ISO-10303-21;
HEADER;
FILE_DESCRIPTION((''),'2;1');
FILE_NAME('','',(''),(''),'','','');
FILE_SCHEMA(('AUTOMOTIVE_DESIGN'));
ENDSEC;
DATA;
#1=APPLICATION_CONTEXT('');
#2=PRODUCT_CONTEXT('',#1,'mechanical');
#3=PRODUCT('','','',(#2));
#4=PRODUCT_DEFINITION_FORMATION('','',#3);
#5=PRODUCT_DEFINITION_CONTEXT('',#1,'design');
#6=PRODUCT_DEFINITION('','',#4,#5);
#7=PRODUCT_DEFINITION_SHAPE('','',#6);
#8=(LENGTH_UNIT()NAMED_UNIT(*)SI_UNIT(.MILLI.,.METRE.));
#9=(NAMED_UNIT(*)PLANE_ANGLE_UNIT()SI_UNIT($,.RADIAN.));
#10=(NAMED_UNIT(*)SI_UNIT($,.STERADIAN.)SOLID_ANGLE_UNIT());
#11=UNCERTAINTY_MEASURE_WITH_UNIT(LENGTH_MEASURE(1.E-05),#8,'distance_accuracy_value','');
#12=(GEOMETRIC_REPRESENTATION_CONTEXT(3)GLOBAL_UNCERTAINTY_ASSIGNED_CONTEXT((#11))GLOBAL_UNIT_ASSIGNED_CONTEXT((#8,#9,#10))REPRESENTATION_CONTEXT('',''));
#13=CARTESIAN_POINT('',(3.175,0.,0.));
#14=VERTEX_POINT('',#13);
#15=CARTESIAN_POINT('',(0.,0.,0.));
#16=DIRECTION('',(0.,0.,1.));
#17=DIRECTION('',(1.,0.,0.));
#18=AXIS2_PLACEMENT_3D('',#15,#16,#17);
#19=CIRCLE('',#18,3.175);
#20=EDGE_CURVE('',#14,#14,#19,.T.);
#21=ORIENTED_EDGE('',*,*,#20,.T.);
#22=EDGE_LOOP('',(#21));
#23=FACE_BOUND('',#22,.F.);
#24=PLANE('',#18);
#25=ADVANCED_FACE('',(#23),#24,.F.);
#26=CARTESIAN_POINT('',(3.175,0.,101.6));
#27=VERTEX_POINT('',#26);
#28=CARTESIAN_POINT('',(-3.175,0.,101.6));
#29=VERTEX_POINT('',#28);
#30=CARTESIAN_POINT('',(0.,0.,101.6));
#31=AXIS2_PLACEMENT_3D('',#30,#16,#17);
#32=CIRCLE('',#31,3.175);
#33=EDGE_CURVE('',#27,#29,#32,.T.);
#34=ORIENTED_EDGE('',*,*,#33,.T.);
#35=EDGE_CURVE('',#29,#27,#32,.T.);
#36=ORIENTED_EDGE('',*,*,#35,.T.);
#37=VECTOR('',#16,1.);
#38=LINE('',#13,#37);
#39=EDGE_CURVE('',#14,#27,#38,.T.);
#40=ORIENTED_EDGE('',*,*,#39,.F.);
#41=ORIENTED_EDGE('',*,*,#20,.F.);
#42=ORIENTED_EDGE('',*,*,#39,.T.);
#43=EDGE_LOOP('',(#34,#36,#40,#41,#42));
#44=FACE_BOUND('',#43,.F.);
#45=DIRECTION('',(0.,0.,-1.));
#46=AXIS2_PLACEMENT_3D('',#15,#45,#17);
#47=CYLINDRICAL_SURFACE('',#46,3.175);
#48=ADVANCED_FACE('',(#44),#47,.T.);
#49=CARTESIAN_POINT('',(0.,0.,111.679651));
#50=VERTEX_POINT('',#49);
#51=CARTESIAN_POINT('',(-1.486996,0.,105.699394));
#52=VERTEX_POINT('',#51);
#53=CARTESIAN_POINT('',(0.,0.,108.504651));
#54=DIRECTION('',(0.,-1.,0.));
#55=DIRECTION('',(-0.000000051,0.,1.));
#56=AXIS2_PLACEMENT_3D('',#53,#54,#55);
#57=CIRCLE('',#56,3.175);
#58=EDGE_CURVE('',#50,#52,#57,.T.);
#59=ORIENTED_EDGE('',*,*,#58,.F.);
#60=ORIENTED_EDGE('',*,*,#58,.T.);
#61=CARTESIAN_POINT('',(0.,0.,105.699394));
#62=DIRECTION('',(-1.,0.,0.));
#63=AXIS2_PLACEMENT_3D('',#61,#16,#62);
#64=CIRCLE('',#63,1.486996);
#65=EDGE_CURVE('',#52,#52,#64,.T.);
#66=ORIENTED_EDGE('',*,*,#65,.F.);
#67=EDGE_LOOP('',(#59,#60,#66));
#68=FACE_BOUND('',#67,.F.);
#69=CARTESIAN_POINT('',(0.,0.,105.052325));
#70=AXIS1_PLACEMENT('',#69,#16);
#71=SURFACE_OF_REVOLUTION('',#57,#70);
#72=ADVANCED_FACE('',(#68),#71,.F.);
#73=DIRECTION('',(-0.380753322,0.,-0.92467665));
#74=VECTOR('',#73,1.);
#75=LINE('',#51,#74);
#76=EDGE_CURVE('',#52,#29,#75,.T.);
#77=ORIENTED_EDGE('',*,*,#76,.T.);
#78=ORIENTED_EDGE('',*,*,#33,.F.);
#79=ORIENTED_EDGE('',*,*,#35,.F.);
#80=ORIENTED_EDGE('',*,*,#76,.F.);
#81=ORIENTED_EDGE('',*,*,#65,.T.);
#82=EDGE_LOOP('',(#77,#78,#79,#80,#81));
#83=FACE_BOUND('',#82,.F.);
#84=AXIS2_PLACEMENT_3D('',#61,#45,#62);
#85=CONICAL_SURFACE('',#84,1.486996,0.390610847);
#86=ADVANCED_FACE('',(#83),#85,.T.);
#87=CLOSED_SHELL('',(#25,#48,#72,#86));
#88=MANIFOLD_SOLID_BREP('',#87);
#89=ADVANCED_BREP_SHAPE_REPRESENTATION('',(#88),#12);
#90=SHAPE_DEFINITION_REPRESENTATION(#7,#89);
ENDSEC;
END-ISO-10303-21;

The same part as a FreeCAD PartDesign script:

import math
import FreeCAD as App
import Part
import Sketcher

V = App.Vector
Q = App.Units.Quantity

doc = App.newDocument("Part")
body = doc.addObject("PartDesign::Body", "Body")

# Sketch on XY plane
sketch1 = body.newObject("Sketcher::SketchObject", "Sketch")
sketch1.AttachmentSupport = (doc.getObject("XY_Plane"), [""])
sketch1.MapMode = "FlatFace"
sketch1.addGeometry(Part.Circle(V(0, 0, 0), V(0, 0, 1), 3.2), False)
sketch1.addConstraint(Sketcher.Constraint("Coincident", 0, 3, -1, 1))
sketch1.addConstraint(Sketcher.Constraint("Diameter", 0, Q("0.25 in")))
pad1 = body.newObject("PartDesign::Pad", "Pad")
pad1.Profile = sketch1
pad1.Length = Q("4 in")

# Sketch on XZ plane
sketch2 = body.newObject("Sketcher::SketchObject", "Sketch001")
sketch2.AttachmentSupport = (doc.getObject("XZ_Plane"), [""])
sketch2.MapMode = "FlatFace"
sketch2.addGeometry(Part.ArcOfCircle(Part.Circle(V(0, 108.5, 0), V(0, 0, 1), 3.2), math.radians(90), math.radians(242)), False)
sketch2.addGeometry(Part.LineSegment(V(-1.5, 105.7, 0), V(-3.2, 101.6, 0)), False)
sketch2.addGeometry(Part.LineSegment(V(-3.2, 101.6, 0), V(0, 101.6, 0)), False)
sketch2.addGeometry(Part.LineSegment(V(0, 101.6, 0), V(0, 111.7, 0)), False)
sketch2.addConstraint(Sketcher.Constraint("Coincident", 0, 2, 1, 1))
sketch2.addConstraint(Sketcher.Constraint("Coincident", 1, 2, 2, 1))
sketch2.addConstraint(Sketcher.Constraint("Coincident", 2, 2, 3, 1))
sketch2.addConstraint(Sketcher.Constraint("Coincident", 3, 2, 0, 1))
sketch2.addConstraint(Sketcher.Constraint("Horizontal", 2))
sketch2.addConstraint(Sketcher.Constraint("Vertical", 3))
sketch2.addConstraint(Sketcher.Constraint("PointOnObject", 0, 3, -2))
sketch2.addConstraint(Sketcher.Constraint("PointOnObject", 2, 2, -2))
sketch2.addConstraint(Sketcher.Constraint("DistanceY", -1, 1, 1, 2, Q("4 in")))
sketch2.addConstraint(Sketcher.Constraint("Radius", 0, Q("0.125 in")))
sketch2.addConstraint(Sketcher.Constraint("DistanceX", 2, 1, 2, 2, Q("0.125 in")))
sketch2.addConstraint(Sketcher.Constraint("DistanceY", 3, 1, 3, 2, Q("10.079651 mm")))
sketch2.addConstraint(Sketcher.Constraint("Distance", 1, Q("4.433327 mm")))
revolution = body.newObject("PartDesign::Revolution", "Revolution")
revolution.Profile = sketch2
revolution.ReferenceAxis = (sketch2, ["V_Axis"])
revolution.Angle = 360

doc.recompute()
